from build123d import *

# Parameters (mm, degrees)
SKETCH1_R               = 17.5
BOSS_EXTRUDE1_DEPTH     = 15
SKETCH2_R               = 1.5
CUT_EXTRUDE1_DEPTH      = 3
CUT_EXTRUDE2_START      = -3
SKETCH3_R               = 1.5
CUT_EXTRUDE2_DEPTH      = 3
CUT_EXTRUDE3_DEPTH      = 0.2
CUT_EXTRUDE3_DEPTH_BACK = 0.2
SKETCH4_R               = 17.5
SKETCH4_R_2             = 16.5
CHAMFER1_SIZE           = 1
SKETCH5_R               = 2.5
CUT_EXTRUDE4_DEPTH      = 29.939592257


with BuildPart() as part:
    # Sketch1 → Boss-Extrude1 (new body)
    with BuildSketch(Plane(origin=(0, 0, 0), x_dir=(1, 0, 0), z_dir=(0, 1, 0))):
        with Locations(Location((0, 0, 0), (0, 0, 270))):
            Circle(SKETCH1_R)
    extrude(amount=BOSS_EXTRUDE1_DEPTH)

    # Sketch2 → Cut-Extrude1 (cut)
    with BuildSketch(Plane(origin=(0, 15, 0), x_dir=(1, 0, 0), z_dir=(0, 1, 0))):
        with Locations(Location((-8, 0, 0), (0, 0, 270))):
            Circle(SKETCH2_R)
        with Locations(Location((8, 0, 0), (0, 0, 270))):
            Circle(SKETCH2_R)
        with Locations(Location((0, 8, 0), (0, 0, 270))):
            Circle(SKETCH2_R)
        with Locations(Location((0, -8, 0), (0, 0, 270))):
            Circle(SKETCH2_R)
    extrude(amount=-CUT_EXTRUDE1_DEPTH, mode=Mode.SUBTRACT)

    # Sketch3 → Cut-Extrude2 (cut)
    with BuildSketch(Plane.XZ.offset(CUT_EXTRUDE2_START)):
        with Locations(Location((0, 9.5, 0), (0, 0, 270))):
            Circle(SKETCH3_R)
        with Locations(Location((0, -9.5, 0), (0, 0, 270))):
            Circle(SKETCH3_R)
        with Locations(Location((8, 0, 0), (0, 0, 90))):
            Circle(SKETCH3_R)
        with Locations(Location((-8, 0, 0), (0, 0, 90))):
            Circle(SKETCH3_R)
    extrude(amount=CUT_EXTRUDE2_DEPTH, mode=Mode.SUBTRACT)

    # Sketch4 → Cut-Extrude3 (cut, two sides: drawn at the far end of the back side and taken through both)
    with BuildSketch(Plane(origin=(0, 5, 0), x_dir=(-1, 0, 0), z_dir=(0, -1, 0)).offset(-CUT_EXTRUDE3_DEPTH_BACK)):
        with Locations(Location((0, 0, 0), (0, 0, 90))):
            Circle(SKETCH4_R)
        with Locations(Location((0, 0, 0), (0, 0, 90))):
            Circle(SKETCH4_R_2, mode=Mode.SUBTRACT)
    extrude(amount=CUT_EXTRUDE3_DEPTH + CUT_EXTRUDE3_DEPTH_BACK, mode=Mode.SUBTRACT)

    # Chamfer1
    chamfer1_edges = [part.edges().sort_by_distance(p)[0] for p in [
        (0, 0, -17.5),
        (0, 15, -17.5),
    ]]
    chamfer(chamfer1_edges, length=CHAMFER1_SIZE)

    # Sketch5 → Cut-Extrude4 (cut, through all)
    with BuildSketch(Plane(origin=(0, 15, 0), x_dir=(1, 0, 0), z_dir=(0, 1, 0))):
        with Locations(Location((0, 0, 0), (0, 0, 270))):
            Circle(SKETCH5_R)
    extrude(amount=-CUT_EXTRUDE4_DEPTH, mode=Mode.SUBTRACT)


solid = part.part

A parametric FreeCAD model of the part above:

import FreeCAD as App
import Part
import Sketcher

V = App.Vector
Q = App.Units.Quantity


def edges_at(feature, points):
    """Names of the edges that pass closest to the given points."""
    edges = feature.Shape.Edges
    near = lambda p: min(range(len(edges)), key=lambda i: edges[i].distToShape(Part.Vertex(*p))[0])
    return sorted({f"Edge{near(p) + 1}" for p in points})

doc = App.newDocument("Part")
params = doc.addObject("Spreadsheet::Sheet", "Params")
for row, (alias, value) in enumerate([
    ("sketch1_diameter", "35 mm"),
    ("pad1_length", "15 mm"),
    ("sketch2_diameter", "3 mm"),
    ("pocket1_length", "3 mm"),
    ("sketch3_diameter", "3 mm"),
    ("pocket2_length", "3 mm"),
    ("sketch4_diameter", "35 mm"),
    ("sketch4_diameter2", "33 mm"),
    ("pocket3_length", "0.2 mm"),
    ("pocket3_length2", "0.2 mm"),
    ("chamfer_size", "1 mm"),
    ("sketch5_diameter", "5 mm"),
], start=1):
    params.set(f"A{row}", alias)
    params.set(f"B{row}", "=" + value)
    params.setAlias(f"B{row}", alias)

body = doc.addObject("PartDesign::Body", "Body")

# Sketch on XZ plane
sketch1 = doc.addObject("Sketcher::SketchObject", "Sketch")
body.addObject(sketch1)
sketch1.AttachmentSupport = (doc.XZ_Plane, [""])
sketch1.MapMode = "FlatFace"
sketch1.addGeometry(Part.Circle(V(0, 0, 0), V(0, 0, 1), 18), False)
sketch1.addConstraint(Sketcher.Constraint("Coincident", 0, 3, -1, 1))
sketch1.addConstraint(Sketcher.Constraint("Diameter", 0, Q("35 mm")))
sketch1.setExpression("Constraints[1]", "Params.sketch1_diameter")
pad1 = doc.addObject("PartDesign::Pad", "Pad")
body.addObject(pad1)
pad1.Profile = sketch1
pad1.setExpression("Length", "Params.pad1_length")
pad1.Reversed = True

# Sketch on XZ plane
sketch2 = doc.addObject("Sketcher::SketchObject", "Sketch001")
body.addObject(sketch2)
sketch2.AttachmentSupport = (doc.XZ_Plane, [""])
sketch2.MapMode = "FlatFace"
sketch2.AttachmentOffset = App.Placement(V(0, 0, -15), App.Rotation())
sketch2.addGeometry(Part.Circle(V(-8, 0, 0), V(0, 0, 1), 1.5), False)
sketch2.addGeometry(Part.Circle(V(8, 0, 0), V(0, 0, 1), 1.5), False)
sketch2.addGeometry(Part.Circle(V(0, -8, 0), V(0, 0, 1), 1.5), False)
sketch2.addGeometry(Part.Circle(V(0, 8, 0), V(0, 0, 1), 1.5), False)
sketch2.addConstraint(Sketcher.Constraint("Equal", 0, 1))
sketch2.addConstraint(Sketcher.Constraint("Equal", 1, 2))
sketch2.addConstraint(Sketcher.Constraint("Equal", 2, 3))
sketch2.addConstraint(Sketcher.Constraint("Symmetric", 0, 3, 1, 3, -1, 1))
sketch2.addConstraint(Sketcher.Constraint("Symmetric", 2, 3, 3, 3, -1, 1))
sketch2.addConstraint(Sketcher.Constraint("PointOnObject", 0, 3, -1))
sketch2.addConstraint(Sketcher.Constraint("PointOnObject", 2, 3, -2))
sketch2.addConstraint(Sketcher.Constraint("Diameter", 0, Q("3 mm")))
sketch2.addConstraint(Sketcher.Constraint("DistanceX", 0, 3, -1, 1, Q("8 mm")))
sketch2.addConstraint(Sketcher.Constraint("DistanceY", 2, 3, -1, 1, Q("8 mm")))
sketch2.setExpression("Constraints[7]", "Params.sketch2_diameter")
pocket1 = doc.addObject("PartDesign::Pocket", "Pocket")
body.addObject(pocket1)
pocket1.Profile = sketch2
pocket1.setExpression("Length", "Params.pocket1_length")
pocket1.Reversed = True

# Sketch on XZ plane
sketch3 = doc.addObject("Sketcher::SketchObject", "Sketch002")
body.addObject(sketch3)
sketch3.AttachmentSupport = (doc.XZ_Plane, [""])
sketch3.MapMode = "FlatFace"
sketch3.AttachmentOffset = App.Placement(V(0, 0, -3), App.Rotation())
sketch3.addGeometry(Part.Circle(V(0, 9.5, 0), V(0, 0, 1), 1.5), False)
sketch3.addGeometry(Part.Circle(V(0, -9.5, 0), V(0, 0, 1), 1.5), False)
sketch3.addGeometry(Part.Circle(V(8, 0, 0), V(0, 0, 1), 1.5), False)
sketch3.addGeometry(Part.Circle(V(-8, 0, 0), V(0, 0, 1), 1.5), False)
sketch3.addConstraint(Sketcher.Constraint("Equal", 0, 1))
sketch3.addConstraint(Sketcher.Constraint("Equal", 1, 2))
sketch3.addConstraint(Sketcher.Constraint("Equal", 2, 3))
sketch3.addConstraint(Sketcher.Constraint("Symmetric", 0, 3, 1, 3, -1, 1))
sketch3.addConstraint(Sketcher.Constraint("Symmetric", 2, 3, 3, 3, -1, 1))
sketch3.addConstraint(Sketcher.Constraint("PointOnObject", 0, 3, -2))
sketch3.addConstraint(Sketcher.Constraint("PointOnObject", 2, 3, -1))
sketch3.addConstraint(Sketcher.Constraint("Diameter", 0, Q("3 mm")))
sketch3.addConstraint(Sketcher.Constraint("DistanceX", -1, 1, 2, 3, Q("8 mm")))
sketch3.addConstraint(Sketcher.Constraint("DistanceY", 1, 3, 0, 3, Q("19 mm")))
sketch3.setExpression("Constraints[7]", "Params.sketch3_diameter")
pocket2 = doc.addObject("PartDesign::Pocket", "Pocket001")
body.addObject(pocket2)
pocket2.Profile = sketch3
pocket2.setExpression("Length", "Params.pocket2_length")
pocket2.Reversed = True

# Sketch on XZ plane
sketch4 = doc.addObject("Sketcher::SketchObject", "Sketch003")
body.addObject(sketch4)
sketch4.AttachmentSupport = (doc.XZ_Plane, [""])
sketch4.MapMode = "FlatFace"
sketch4.AttachmentOffset = App.Placement(V(0, 0, -5), App.Rotation())
sketch4.addGeometry(Part.Circle(V(0, 0, 0), V(0, 0, 1), 18), False)
sketch4.addGeometry(Part.Circle(V(0, 0, 0), V(0, 0, 1), 16), False)
sketch4.addConstraint(Sketcher.Constraint("Coincident", 0, 3, -1, 1))
sketch4.addConstraint(Sketcher.Constraint("Coincident", 1, 3, -1, 1))
sketch4.addConstraint(Sketcher.Constraint("Diameter", 0, Q("35 mm")))
sketch4.addConstraint(Sketcher.Constraint("Diameter", 1, Q("33 mm")))
sketch4.setExpression("Constraints[2]", "Params.sketch4_diameter")
sketch4.setExpression("Constraints[3]", "Params.sketch4_diameter2")
pocket3 = doc.addObject("PartDesign::Pocket", "Pocket002")
body.addObject(pocket3)
pocket3.Profile = sketch4
pocket3.Type = "TwoLengths"
pocket3.setExpression("Length", "Params.pocket3_length")
pocket3.setExpression("Length2", "Params.pocket3_length2")
pocket3.Reversed = True
doc.recompute()

chamfer = doc.addObject("PartDesign::Chamfer", "Chamfer")
body.addObject(chamfer)
chamfer.Base = (pocket3, edges_at(pocket3, [(0, 0, -17.5), (0, 15, -17.5)]))
chamfer.setExpression("Size", "Params.chamfer_size")

# Sketch on XZ plane
sketch5 = doc.addObject("Sketcher::SketchObject", "Sketch004")
body.addObject(sketch5)
sketch5.AttachmentSupport = (doc.XZ_Plane, [""])
sketch5.MapMode = "FlatFace"
sketch5.AttachmentOffset = App.Placement(V(0, 0, -15), App.Rotation())
sketch5.addGeometry(Part.Circle(V(0, 0, 0), V(0, 0, 1), 2.5), False)
sketch5.addConstraint(Sketcher.Constraint("Coincident", 0, 3, -1, 1))
sketch5.addConstraint(Sketcher.Constraint("Diameter", 0, Q("5 mm")))
sketch5.setExpression("Constraints[1]", "Params.sketch5_diameter")
pocket4 = doc.addObject("PartDesign::Pocket", "Pocket003")
body.addObject(pocket4)
pocket4.Profile = sketch5
pocket4.Type = "ThroughAll"
pocket4.Reversed = True

doc.recompute()
